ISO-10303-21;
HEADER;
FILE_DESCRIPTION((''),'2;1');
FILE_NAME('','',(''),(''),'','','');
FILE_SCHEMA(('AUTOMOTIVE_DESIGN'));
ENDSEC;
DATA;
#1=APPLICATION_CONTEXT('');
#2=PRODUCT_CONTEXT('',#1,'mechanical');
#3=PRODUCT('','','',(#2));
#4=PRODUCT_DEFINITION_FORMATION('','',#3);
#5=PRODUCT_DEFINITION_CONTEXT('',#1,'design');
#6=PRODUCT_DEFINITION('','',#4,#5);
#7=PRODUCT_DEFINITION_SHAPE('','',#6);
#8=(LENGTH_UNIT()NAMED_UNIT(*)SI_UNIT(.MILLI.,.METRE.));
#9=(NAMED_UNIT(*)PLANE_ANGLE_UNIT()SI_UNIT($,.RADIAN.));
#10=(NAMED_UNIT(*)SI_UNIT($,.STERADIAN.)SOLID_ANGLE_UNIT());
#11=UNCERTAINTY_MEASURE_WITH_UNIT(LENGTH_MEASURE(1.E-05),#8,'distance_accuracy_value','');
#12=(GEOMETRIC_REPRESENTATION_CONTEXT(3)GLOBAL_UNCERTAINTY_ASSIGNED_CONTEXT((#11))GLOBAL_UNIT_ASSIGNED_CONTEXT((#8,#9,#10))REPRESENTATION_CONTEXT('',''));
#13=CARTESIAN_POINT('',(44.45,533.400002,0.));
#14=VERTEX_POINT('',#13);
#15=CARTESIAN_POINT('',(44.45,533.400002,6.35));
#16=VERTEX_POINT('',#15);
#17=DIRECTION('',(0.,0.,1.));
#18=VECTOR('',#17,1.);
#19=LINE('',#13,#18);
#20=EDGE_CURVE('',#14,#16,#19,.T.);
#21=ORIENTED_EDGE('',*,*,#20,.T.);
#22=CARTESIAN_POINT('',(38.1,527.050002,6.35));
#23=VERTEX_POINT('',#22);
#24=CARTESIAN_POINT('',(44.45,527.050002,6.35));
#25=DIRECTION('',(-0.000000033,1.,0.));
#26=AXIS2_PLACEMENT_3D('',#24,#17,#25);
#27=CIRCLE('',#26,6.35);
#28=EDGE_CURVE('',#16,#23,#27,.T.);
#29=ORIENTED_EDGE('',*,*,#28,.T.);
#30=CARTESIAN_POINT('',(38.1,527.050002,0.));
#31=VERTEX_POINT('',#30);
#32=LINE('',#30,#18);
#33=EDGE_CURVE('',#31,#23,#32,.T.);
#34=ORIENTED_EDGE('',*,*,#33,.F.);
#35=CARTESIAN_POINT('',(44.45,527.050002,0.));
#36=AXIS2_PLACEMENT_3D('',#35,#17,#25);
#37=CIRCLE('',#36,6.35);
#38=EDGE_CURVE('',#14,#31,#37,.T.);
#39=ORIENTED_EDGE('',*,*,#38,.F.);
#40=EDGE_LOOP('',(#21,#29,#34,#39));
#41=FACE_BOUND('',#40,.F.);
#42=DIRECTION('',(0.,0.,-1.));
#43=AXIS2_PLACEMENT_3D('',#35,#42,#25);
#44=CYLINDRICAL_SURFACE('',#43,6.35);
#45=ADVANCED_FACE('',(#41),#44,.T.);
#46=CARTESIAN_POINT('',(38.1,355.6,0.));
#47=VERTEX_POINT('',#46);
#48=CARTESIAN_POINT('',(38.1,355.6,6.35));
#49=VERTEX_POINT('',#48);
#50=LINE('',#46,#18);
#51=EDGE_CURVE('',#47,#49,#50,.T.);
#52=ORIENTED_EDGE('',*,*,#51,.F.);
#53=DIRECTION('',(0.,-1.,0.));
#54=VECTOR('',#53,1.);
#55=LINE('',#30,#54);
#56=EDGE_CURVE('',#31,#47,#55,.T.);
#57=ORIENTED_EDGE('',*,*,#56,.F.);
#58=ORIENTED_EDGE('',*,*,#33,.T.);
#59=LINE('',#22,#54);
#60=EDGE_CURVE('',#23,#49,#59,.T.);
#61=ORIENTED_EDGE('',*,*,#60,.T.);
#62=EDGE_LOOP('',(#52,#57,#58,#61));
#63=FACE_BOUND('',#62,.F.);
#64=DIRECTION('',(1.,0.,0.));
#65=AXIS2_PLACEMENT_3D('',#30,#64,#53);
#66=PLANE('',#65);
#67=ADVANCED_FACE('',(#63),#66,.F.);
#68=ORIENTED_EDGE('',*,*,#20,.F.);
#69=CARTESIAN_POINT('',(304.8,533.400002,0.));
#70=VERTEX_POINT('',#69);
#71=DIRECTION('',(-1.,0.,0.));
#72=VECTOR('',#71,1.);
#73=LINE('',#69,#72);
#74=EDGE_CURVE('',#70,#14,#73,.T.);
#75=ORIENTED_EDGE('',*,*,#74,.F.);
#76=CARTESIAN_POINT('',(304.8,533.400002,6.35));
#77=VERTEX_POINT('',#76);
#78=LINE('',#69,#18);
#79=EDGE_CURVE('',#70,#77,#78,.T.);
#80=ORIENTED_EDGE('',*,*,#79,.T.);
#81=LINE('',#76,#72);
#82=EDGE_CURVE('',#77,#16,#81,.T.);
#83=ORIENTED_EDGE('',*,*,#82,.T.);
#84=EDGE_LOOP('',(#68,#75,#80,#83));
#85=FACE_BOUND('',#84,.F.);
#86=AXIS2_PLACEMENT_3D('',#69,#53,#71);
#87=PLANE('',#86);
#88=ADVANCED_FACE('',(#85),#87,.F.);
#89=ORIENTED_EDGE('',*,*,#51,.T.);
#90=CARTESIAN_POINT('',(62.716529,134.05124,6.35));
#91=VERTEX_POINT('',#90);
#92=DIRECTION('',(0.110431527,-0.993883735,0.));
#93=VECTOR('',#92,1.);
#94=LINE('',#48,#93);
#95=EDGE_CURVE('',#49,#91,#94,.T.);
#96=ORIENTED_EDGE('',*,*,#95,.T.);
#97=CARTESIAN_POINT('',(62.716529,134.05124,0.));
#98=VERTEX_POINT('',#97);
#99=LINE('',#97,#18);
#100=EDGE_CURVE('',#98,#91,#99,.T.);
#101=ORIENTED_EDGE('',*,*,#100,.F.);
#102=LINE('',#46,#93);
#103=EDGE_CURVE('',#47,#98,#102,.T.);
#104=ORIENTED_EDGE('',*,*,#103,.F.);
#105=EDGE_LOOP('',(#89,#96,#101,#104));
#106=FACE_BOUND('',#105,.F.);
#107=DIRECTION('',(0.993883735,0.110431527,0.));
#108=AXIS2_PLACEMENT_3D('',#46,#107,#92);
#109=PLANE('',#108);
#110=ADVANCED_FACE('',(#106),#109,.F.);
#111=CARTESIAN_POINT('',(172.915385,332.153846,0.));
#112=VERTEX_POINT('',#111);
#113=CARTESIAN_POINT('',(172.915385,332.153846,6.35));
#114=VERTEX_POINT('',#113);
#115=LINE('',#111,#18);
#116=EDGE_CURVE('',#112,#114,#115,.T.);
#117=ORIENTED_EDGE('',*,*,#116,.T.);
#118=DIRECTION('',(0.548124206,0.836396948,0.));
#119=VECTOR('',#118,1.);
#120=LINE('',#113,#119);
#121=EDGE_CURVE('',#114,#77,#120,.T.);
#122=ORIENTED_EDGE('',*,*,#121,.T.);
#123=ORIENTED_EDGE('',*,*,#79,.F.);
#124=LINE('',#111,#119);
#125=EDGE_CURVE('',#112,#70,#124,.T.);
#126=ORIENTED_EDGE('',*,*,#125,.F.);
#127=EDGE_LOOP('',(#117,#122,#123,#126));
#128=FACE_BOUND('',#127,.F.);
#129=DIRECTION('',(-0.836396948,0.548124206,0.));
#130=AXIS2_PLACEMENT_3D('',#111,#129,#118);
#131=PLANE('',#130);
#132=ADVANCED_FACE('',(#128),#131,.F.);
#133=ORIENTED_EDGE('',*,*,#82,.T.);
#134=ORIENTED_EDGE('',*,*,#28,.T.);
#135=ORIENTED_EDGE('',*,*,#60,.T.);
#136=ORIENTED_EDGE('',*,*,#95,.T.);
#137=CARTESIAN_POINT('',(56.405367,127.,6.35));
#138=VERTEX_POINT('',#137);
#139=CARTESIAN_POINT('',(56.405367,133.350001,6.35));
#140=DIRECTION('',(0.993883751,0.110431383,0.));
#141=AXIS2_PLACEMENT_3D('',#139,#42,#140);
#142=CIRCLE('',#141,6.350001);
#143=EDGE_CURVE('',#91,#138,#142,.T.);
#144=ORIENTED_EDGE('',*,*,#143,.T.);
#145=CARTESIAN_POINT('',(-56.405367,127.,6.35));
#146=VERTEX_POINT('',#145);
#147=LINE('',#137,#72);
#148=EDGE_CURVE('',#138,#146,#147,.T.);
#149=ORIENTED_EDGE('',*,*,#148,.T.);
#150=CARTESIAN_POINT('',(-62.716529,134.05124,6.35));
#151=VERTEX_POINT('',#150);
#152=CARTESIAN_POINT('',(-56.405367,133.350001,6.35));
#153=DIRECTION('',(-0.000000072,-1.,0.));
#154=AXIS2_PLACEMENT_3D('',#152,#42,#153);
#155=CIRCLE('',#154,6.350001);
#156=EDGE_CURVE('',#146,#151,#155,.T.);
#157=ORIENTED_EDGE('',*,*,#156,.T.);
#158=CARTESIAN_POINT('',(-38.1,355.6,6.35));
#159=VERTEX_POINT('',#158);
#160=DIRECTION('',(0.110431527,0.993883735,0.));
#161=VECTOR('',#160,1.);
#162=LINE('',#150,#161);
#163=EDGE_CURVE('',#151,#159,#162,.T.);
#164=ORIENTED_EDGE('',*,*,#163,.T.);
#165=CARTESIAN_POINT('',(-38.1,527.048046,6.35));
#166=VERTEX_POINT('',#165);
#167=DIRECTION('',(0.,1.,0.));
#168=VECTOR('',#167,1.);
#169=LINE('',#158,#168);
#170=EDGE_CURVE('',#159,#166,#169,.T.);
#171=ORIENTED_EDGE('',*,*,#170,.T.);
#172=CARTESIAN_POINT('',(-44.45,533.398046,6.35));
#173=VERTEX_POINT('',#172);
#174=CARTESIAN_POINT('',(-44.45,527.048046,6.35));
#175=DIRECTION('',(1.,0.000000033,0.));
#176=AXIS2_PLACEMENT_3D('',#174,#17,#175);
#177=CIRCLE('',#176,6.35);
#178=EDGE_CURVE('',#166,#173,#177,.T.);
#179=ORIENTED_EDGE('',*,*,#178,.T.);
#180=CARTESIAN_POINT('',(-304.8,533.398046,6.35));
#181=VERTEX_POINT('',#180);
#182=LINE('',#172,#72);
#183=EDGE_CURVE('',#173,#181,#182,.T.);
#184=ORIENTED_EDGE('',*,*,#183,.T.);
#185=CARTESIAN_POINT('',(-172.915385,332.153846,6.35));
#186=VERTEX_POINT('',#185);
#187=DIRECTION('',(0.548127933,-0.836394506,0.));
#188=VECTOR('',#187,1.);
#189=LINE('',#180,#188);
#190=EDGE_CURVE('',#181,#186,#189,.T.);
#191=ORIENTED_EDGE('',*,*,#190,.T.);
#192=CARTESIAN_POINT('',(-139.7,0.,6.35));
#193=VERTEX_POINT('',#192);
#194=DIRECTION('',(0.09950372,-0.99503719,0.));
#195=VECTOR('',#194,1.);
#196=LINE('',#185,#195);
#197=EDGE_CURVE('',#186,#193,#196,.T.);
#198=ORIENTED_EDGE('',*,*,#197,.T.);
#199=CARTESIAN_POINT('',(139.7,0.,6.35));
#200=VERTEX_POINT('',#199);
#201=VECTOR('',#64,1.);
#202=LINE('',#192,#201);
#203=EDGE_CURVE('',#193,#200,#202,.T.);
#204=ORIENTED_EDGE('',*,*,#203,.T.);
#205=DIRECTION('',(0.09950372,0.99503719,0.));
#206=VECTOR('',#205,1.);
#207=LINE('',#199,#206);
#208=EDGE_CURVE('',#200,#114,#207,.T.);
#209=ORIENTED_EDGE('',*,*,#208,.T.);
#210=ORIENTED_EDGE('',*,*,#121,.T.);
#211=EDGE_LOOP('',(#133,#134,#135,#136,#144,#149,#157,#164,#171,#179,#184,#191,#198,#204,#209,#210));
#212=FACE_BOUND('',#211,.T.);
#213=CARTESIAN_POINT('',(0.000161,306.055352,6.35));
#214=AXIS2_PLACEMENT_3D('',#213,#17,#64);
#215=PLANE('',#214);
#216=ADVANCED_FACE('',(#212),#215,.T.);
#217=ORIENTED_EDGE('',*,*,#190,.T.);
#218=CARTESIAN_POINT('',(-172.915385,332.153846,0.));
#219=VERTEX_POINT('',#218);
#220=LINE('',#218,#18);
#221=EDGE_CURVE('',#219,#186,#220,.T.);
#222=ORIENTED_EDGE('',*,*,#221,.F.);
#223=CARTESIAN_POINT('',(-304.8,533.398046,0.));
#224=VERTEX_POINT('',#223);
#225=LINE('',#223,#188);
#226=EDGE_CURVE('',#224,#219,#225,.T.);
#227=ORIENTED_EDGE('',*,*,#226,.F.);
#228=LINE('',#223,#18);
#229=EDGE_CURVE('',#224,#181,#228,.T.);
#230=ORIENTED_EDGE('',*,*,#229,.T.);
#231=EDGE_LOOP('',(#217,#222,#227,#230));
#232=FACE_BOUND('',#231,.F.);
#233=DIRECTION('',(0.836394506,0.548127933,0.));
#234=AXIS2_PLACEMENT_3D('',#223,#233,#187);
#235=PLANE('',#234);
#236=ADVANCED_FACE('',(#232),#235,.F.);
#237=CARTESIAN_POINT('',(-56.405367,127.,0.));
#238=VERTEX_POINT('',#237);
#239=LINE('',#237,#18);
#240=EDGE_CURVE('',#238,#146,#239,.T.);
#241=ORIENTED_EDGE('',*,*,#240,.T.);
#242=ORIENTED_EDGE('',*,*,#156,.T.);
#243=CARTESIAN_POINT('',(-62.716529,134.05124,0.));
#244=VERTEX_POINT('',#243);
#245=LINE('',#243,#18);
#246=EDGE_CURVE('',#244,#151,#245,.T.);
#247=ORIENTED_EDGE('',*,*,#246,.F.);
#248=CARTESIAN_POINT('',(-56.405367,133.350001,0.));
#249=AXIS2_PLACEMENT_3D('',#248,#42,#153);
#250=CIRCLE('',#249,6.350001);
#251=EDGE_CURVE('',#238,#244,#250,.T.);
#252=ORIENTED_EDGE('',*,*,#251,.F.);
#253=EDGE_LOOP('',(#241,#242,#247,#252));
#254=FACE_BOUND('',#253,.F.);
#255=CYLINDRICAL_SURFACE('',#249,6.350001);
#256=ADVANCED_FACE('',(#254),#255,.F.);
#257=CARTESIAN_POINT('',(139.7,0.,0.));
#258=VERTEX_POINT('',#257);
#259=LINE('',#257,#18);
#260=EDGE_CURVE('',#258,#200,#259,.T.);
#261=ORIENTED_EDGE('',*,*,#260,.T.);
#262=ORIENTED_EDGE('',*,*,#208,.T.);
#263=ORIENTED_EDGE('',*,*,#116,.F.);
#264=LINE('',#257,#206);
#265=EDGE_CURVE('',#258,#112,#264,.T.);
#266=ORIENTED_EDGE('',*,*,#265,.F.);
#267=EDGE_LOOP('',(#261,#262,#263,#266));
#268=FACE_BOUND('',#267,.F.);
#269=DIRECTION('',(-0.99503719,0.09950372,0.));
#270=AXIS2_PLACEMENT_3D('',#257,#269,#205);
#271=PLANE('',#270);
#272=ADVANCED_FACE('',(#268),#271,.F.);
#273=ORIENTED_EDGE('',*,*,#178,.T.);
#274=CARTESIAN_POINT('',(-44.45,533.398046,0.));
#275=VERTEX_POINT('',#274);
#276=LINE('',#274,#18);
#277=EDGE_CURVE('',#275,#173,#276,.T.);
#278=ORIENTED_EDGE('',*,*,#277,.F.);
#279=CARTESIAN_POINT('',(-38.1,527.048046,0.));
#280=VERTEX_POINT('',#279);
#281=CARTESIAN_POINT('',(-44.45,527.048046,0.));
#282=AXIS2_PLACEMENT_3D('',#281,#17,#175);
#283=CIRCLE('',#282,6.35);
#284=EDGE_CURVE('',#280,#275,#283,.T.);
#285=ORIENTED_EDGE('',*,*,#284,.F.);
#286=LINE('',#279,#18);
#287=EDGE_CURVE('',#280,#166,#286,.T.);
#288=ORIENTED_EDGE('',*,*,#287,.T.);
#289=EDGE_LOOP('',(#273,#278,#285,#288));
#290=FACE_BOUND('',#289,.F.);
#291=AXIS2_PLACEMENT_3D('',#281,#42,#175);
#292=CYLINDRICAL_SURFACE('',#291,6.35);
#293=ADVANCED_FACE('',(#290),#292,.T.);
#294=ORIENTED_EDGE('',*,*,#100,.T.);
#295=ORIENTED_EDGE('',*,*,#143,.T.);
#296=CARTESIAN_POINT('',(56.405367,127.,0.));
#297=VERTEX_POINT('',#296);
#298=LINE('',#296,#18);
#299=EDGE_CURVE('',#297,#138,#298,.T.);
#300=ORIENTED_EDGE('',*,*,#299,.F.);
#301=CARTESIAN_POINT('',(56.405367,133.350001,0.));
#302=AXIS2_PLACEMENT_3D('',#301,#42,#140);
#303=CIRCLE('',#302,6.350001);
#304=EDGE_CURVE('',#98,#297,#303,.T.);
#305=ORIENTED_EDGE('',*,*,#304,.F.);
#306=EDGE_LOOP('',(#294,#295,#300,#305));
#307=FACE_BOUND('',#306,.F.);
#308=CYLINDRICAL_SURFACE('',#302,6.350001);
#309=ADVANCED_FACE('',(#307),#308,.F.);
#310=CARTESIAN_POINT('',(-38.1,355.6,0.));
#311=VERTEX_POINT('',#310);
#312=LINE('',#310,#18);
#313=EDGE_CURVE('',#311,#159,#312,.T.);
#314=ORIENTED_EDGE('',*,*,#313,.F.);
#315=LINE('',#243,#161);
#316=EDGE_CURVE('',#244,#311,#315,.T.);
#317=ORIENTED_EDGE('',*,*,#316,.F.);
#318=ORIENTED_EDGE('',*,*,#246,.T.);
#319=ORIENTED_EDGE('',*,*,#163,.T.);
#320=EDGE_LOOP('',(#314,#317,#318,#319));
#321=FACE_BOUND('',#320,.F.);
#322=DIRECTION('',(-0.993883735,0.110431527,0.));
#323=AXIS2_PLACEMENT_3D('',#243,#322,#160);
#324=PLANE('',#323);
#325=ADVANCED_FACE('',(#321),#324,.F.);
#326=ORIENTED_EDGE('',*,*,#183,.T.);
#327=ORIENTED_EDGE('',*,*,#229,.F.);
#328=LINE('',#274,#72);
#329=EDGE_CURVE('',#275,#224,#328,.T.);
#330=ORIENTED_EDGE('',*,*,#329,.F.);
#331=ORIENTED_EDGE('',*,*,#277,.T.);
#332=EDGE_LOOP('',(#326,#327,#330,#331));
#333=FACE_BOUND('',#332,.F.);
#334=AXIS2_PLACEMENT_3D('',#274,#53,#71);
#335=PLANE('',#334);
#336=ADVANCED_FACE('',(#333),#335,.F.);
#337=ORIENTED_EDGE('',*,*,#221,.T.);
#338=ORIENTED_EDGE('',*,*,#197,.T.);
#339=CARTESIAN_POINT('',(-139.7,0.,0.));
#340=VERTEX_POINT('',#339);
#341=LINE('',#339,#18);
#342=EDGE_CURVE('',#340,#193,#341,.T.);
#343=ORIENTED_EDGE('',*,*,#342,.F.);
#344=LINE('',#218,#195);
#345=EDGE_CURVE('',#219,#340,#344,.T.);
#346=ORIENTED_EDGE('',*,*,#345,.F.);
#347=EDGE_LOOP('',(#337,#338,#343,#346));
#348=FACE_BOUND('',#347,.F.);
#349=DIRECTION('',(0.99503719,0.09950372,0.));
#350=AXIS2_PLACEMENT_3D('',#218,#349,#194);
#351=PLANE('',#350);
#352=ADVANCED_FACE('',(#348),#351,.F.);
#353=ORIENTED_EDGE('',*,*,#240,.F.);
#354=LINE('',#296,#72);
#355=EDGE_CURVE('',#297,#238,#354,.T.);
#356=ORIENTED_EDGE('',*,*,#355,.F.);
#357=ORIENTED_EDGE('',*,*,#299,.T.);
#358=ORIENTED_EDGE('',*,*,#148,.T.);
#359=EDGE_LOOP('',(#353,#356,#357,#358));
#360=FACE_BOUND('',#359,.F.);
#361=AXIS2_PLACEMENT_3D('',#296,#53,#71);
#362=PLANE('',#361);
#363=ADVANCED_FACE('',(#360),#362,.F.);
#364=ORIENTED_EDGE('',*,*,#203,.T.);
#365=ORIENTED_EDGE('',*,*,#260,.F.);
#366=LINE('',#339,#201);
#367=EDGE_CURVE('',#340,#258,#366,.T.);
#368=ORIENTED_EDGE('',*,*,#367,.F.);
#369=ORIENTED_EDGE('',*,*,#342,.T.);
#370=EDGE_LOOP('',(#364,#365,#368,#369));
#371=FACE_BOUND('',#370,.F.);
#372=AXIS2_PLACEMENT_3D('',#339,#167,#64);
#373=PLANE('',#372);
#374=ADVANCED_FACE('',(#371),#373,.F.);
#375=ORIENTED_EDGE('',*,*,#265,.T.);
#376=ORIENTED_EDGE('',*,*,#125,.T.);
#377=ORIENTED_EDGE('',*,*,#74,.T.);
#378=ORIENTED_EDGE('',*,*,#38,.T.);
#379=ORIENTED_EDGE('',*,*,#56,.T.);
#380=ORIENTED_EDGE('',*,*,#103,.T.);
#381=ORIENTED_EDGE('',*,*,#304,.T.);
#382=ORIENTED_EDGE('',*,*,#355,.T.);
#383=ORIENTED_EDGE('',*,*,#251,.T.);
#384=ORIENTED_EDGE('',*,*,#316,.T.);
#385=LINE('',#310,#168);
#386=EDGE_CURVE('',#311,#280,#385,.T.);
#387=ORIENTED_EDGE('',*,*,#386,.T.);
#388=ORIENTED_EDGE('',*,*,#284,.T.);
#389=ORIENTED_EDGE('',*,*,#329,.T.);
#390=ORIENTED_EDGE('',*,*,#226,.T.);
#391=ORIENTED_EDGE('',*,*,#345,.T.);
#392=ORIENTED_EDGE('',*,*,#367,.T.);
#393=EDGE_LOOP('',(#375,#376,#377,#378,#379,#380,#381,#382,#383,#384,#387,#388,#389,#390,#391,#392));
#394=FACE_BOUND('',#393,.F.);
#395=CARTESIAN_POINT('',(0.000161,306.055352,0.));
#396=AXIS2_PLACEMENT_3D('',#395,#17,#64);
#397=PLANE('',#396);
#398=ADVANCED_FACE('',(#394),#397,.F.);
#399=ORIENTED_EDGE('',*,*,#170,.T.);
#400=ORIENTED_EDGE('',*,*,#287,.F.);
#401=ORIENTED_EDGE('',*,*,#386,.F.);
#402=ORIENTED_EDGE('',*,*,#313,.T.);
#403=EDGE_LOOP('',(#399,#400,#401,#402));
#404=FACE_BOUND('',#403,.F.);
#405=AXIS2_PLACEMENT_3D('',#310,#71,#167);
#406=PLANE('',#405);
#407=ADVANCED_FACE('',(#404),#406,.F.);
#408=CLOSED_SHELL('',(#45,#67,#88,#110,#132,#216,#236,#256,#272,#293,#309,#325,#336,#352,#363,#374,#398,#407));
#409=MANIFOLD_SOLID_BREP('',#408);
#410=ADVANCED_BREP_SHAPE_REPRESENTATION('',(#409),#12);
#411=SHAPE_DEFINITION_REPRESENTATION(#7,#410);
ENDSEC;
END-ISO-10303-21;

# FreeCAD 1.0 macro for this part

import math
import FreeCAD as App
import Part
import Sketcher

V = App.Vector
Q = App.Units.Quantity

doc = App.newDocument("Part")
body = doc.addObject("PartDesign::Body", "Body")

sketch1 = doc.addObject("Sketcher::SketchObject", "Sketch")
body.addObject(sketch1)
sketch1.AttachmentSupport = (doc.XY_Plane, [""])
sketch1.MapMode = "FlatFace"
sketch1.addGeometry([
    Part.LineSegment(V(-140, 0, 0), V(140, 0, 0)),
    Part.LineSegment(V(140, 0, 0), V(173, 332, 0)),
    Part.LineSegment(V(173, 332, 0), V(305, 533, 0)),
    Part.LineSegment(V(305, 533, 0), V(44, 533, 0)),
    Part.ArcOfCircle(Part.Circle(V(44, 527, 0), V(0, 0, 1), 6), math.radians(90), math.radians(180)),
    Part.LineSegment(V(38, 527, 0), V(38, 356, 0)),
    Part.LineSegment(V(38, 356, 0), V(63, 134, 0)),
    Part.ArcOfCircle(Part.Circle(V(56, 133, 0), V(0, 0, 1), 6), math.radians(-90), math.radians(6)),
    Part.LineSegment(V(56, 127, 0), V(-56, 127, 0)),
    Part.ArcOfCircle(Part.Circle(V(-56, 133, 0), V(0, 0, 1), 6), math.radians(174), math.radians(270)),
    Part.LineSegment(V(-63, 134, 0), V(-38, 356, 0)),
    Part.LineSegment(V(-38, 356, 0), V(-38, 527, 0)),
    Part.ArcOfCircle(Part.Circle(V(-44, 527, 0), V(0, 0, 1), 6), math.radians(0), math.radians(90)),
    Part.LineSegment(V(-44, 533, 0), V(-305, 533, 0)),
    Part.LineSegment(V(-305, 533, 0), V(-173, 332, 0)),
    Part.LineSegment(V(-173, 332, 0), V(-140, 0, 0)),
], False)
sketch1.addConstraint([
    Sketcher.Constraint("Coincident", 0, 2, 1, 1),
    Sketcher.Constraint("Coincident", 1, 2, 2, 1),
    Sketcher.Constraint("Coincident", 2, 2, 3, 1),
    Sketcher.Constraint("Tangent", 3, 2, 4, 1),
    Sketcher.Constraint("Tangent", 4, 2, 5, 1),
    Sketcher.Constraint("Coincident", 5, 2, 6, 1),
    Sketcher.Constraint("Tangent", 6, 2, 7, 2),
    Sketcher.Constraint("Tangent", 7, 1, 8, 1),
    Sketcher.Constraint("Tangent", 8, 2, 9, 2),
    Sketcher.Constraint("Tangent", 9, 1, 10, 1),
    Sketcher.Constraint("Coincident", 10, 2, 11, 1),
    Sketcher.Constraint("Tangent", 11, 2, 12, 1),
    Sketcher.Constraint("Tangent", 12, 2, 13, 1),
    Sketcher.Constraint("Coincident", 13, 2, 14, 1),
    Sketcher.Constraint("Coincident", 14, 2, 15, 1),
    Sketcher.Constraint("Coincident", 15, 2, 0, 1),
    Sketcher.Constraint("Horizontal", 0),
    Sketcher.Constraint("Horizontal", 3),
    Sketcher.Constraint("Vertical", 5),
    Sketcher.Constraint("Horizontal", 8),
    Sketcher.Constraint("Vertical", 11),
    Sketcher.Constraint("Horizontal", 13),
    Sketcher.Constraint("Equal", 4, 7),
    Sketcher.Constraint("Equal", 7, 9),
    Sketcher.Constraint("Equal", 9, 12),
    Sketcher.Constraint("Symmetric", 0, 2, 15, 2, -1, 1),
    Sketcher.Constraint("Symmetric", 6, 2, 9, 1, -2),
    Sketcher.Constraint("Symmetric", 1, 2, 14, 2, -2),
    Sketcher.Constraint("Horizontal", 5, 2, 10, 2),
    Sketcher.Constraint("Equal", 3, 13),
    Sketcher.Constraint("DistanceX", 0, 1, 0, 2, Q("11 in")),
    Sketcher.Constraint("Radius", 4, Q("0.25 in")),
    Sketcher.Constraint("DistanceX", -1, 1, 2, 2, Q("12 in")),
    Sketcher.Constraint("DistanceY", -1, 1, 2, 2, Q("21.0000001 in")),
    Sketcher.Constraint("DistanceY", -1, 1, 5, 2, Q("14 in")),
    Sketcher.Constraint("DistanceY", -1, 1, 7, 1, Q("5 in")),
    Sketcher.Constraint("DistanceX", 10, 2, 5, 2, Q("3 in")),
    Sketcher.Constraint("DistanceY", 1, 2, 12, 3, Q("7.673 in")),
    Sketcher.Constraint("Distance", 2, 240.610821),
    Sketcher.Constraint("Distance", 6, 222.91215),
    Sketcher.Constraint("DistanceY", 11, 1, 11, 2, 171.448046),
])
pad1 = doc.addObject("PartDesign::Pad", "Pad")
body.addObject(pad1)
pad1.Profile = sketch1
pad1.Length = Q("0.25 in")

doc.recompute()
